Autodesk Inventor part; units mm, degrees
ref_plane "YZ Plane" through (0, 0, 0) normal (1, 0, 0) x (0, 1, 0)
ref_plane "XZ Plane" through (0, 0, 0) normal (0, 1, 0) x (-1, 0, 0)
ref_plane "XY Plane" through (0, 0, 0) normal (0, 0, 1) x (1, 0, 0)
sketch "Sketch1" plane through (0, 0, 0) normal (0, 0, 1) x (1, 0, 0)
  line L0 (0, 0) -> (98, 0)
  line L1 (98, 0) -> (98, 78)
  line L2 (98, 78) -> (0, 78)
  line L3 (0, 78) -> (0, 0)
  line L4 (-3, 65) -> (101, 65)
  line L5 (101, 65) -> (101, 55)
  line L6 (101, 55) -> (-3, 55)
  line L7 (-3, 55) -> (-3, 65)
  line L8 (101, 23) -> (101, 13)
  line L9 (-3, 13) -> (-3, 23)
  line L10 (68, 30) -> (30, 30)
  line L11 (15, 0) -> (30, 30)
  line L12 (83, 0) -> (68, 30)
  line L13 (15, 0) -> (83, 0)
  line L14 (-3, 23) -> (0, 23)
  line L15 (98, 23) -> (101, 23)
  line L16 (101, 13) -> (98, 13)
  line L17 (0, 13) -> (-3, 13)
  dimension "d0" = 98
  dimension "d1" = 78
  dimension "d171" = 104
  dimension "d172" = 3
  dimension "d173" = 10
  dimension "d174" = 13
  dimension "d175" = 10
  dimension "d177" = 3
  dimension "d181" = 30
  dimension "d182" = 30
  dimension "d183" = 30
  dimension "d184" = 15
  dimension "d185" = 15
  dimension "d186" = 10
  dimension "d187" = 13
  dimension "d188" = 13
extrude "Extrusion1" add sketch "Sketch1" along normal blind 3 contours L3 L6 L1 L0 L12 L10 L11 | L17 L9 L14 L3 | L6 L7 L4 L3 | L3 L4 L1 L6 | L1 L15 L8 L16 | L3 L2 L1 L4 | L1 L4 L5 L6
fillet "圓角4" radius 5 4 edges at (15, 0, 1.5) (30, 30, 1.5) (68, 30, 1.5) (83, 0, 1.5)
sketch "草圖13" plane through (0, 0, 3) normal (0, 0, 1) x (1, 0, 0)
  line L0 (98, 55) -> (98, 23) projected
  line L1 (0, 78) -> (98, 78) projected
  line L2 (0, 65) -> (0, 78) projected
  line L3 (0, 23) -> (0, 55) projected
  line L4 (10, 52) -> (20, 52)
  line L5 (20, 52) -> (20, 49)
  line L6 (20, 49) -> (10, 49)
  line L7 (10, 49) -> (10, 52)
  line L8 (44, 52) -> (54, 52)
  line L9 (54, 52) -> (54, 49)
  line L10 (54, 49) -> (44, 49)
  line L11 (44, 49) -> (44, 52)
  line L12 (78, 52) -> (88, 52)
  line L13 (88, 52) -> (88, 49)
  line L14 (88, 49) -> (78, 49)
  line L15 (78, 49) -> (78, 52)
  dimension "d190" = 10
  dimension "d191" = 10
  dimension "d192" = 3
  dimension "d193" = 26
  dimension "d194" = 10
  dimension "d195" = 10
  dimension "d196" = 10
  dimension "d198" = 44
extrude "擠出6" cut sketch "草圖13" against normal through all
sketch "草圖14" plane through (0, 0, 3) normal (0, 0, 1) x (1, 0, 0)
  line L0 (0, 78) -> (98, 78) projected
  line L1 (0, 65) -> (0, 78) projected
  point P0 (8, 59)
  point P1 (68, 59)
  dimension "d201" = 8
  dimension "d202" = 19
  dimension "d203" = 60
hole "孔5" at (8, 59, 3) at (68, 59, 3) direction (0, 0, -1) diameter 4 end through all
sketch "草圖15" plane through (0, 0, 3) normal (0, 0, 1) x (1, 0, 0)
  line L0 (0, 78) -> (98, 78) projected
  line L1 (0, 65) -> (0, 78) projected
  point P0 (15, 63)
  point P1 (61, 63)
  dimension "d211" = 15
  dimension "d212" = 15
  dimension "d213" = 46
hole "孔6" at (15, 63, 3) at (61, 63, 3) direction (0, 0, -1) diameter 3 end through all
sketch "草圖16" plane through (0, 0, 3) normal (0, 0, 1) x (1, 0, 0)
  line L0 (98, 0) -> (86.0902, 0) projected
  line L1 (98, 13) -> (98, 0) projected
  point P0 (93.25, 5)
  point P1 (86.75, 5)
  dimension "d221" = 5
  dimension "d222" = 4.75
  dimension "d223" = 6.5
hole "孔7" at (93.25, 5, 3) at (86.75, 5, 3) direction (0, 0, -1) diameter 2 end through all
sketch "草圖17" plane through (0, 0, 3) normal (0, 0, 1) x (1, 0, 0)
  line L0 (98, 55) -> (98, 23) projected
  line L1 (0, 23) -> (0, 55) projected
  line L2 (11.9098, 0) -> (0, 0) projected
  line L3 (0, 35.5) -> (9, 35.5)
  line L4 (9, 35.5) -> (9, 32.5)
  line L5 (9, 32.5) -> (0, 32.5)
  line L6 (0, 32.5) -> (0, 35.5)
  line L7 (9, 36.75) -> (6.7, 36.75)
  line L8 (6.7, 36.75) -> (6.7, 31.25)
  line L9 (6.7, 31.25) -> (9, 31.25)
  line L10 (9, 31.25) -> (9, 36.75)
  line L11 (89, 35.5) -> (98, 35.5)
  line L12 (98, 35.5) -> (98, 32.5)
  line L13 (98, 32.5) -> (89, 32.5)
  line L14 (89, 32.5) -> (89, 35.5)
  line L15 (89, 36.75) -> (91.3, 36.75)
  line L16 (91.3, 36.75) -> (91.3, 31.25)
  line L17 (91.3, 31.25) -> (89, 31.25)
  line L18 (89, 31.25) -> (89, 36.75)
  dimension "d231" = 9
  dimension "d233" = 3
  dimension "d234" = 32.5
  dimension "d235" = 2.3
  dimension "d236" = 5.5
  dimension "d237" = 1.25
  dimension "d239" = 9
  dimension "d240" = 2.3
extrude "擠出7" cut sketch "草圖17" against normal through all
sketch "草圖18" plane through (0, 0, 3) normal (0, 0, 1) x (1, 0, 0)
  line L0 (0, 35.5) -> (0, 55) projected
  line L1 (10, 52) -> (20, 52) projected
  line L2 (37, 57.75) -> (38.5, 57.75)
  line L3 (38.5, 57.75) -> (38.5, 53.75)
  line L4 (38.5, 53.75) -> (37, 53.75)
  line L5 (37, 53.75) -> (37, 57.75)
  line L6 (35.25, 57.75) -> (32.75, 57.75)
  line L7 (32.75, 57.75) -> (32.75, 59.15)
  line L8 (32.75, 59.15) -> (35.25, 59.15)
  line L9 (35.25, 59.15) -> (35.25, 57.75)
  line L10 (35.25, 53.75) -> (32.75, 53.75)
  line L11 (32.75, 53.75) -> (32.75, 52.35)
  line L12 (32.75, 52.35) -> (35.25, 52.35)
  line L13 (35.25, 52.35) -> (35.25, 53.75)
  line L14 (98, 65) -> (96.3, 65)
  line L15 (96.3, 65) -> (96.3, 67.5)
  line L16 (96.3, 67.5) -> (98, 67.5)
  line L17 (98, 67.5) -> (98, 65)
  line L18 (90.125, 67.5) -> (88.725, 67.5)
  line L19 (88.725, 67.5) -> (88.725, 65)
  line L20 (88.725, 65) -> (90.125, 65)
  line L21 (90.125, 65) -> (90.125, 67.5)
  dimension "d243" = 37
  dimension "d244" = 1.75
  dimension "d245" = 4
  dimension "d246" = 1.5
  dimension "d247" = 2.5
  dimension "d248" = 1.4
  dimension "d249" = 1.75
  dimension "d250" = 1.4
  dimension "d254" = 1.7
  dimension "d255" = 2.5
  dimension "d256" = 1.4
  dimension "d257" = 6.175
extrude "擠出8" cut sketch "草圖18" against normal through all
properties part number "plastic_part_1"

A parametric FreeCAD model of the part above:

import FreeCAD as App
import Part
import Sketcher
from FreeCAD import Vector


def edges_at(feature, points):
    """Names of the edges that pass closest to the given points."""
    edges = feature.Shape.Edges
    near = lambda p: min(range(len(edges)), key=lambda i: edges[i].distToShape(Part.Vertex(*p))[0])
    return sorted({f"Edge{near(p) + 1}" for p in points})


def add_polygon(sketch, points):
    """Adds a closed chain of lines whose ends are joined by coincident constraints."""
    first, n = sketch.GeometryCount, len(points)
    for a, b in zip(points, points[1:] + points[:1]):
        sketch.addGeometry(Part.LineSegment(App.Vector(*a, 0), App.Vector(*b, 0)), False)
    for i in range(n):
        sketch.addConstraint(Sketcher.Constraint("Coincident", first + i, 2, first + (i + 1) % n, 1))

doc = App.newDocument("Part")
body = doc.addObject("PartDesign::Body", "Body")

# Sketch on XY plane
sketch1 = doc.addObject("Sketcher::SketchObject", "Sketch")
body.addObject(sketch1)
sketch1.AttachmentSupport = (doc.XY_Plane, [""])
sketch1.MapMode = "FlatFace"
add_polygon(sketch1, [(0, 13), (0, 0), (15, 0), (30, 30), (68, 30), (83, 0), (98, 0), (98, 13), (101, 13), (101, 23), (98, 23), (98, 55), (101, 55), (101, 65), (98, 65), (98, 78), (0, 78), (0, 65), (-3, 65), (-3, 55), (0, 55), (0, 23), (-3, 23), (-3, 13)])  # lines 0-23
sketch1.addConstraint(Sketcher.Constraint("Vertical", 0))
sketch1.addConstraint(Sketcher.Constraint("Horizontal", 1))
sketch1.addConstraint(Sketcher.Constraint("Horizontal", 3))
sketch1.addConstraint(Sketcher.Constraint("Horizontal", 5))
sketch1.addConstraint(Sketcher.Constraint("Vertical", 6))
sketch1.addConstraint(Sketcher.Constraint("Horizontal", 7))
sketch1.addConstraint(Sketcher.Constraint("Vertical", 8))
sketch1.addConstraint(Sketcher.Constraint("Horizontal", 9))
sketch1.addConstraint(Sketcher.Constraint("Vertical", 10))
sketch1.addConstraint(Sketcher.Constraint("Horizontal", 11))
sketch1.addConstraint(Sketcher.Constraint("Vertical", 12))
sketch1.addConstraint(Sketcher.Constraint("Horizontal", 13))
sketch1.addConstraint(Sketcher.Constraint("Vertical", 14))
sketch1.addConstraint(Sketcher.Constraint("Horizontal", 15))
sketch1.addConstraint(Sketcher.Constraint("Vertical", 16))
sketch1.addConstraint(Sketcher.Constraint("Horizontal", 17))
sketch1.addConstraint(Sketcher.Constraint("Vertical", 18))
sketch1.addConstraint(Sketcher.Constraint("Horizontal", 19))
sketch1.addConstraint(Sketcher.Constraint("Vertical", 20))
sketch1.addConstraint(Sketcher.Constraint("Horizontal", 21))
sketch1.addConstraint(Sketcher.Constraint("Vertical", 22))
sketch1.addConstraint(Sketcher.Constraint("Horizontal", 23))
sketch1.addConstraint(Sketcher.Constraint("Coincident", 0, 2, -1, 1))
sketch1.addConstraint(Sketcher.Constraint("PointOnObject", 4, 2, -1))
sketch1.addConstraint(Sketcher.Constraint("PointOnObject", 15, 2, -2))
sketch1.addConstraint(Sketcher.Constraint("PointOnObject", 19, 2, -2))
sketch1.addConstraint(Sketcher.Constraint("Horizontal", 13, 2, 16, 2))
sketch1.addConstraint(Sketcher.Constraint("Horizontal", 11, 2, 18, 2))
sketch1.addConstraint(Sketcher.Constraint("Horizontal", 9, 2, 20, 2))
sketch1.addConstraint(Sketcher.Constraint("Horizontal", 7, 2, 22, 2))
sketch1.addConstraint(Sketcher.Constraint("Vertical", 6, 2, 9, 2))
sketch1.addConstraint(Sketcher.Constraint("Vertical", 8, 2, 11, 2))
sketch1.addConstraint(Sketcher.Constraint("Vertical", 10, 2, 13, 2))
sketch1.addConstraint(Sketcher.Constraint("Vertical", 18, 2, 21, 2))
sketch1.addConstraint(Sketcher.Constraint("Equal", 1, 5))
sketch1.addConstraint(Sketcher.Constraint("Equal", 13, 17))
sketch1.addConstraint(Sketcher.Constraint("Equal", 8, 12))
sketch1.addConstraint(Sketcher.Constraint("Equal", 6, 14))
sketch1.addConstraint(Sketcher.Constraint("Equal", 2, 4))
sketch1.addConstraint(Sketcher.Constraint("DistanceX", 1, 1, 1, 2, 15.0))
sketch1.addConstraint(Sketcher.Constraint("DistanceX", 7, 1, 7, 2, 3.0))
sketch1.addConstraint(Sketcher.Constraint("DistanceX", 15, 2, 15, 1, 98.0))
sketch1.addConstraint(Sketcher.Constraint("DistanceY", 0, 2, 0, 1, 13.0))
sketch1.addConstraint(Sketcher.Constraint("DistanceY", 8, 1, 8, 2, 10.0))
sketch1.addConstraint(Sketcher.Constraint("DistanceX", -1, 1, 2, 2, 30.0))
sketch1.addConstraint(Sketcher.Constraint("DistanceY", -1, 1, 2, 2, 30.0))
sketch1.addConstraint(Sketcher.Constraint("DistanceY", -1, 1, 14, 2, 78.0))
pad1 = doc.addObject("PartDesign::Pad", "Pad")
body.addObject(pad1)
pad1.Profile = sketch1
pad1.Length = 3
doc.recompute()

fillet = doc.addObject("PartDesign::Fillet", "Fillet")
body.addObject(fillet)
fillet.Base = (pad1, edges_at(pad1, [
    (15, 0, 1.5),
    (30, 30, 1.5),
    (68, 30, 1.5),
    (83, 0, 1.5),
]))
fillet.Radius = 5

# Sketch on XY plane
sketch2 = doc.addObject("Sketcher::SketchObject", "Sketch001")
body.addObject(sketch2)
sketch2.AttachmentSupport = (doc.XY_Plane, [""])
sketch2.MapMode = "FlatFace"
sketch2.AttachmentOffset = App.Placement(Vector(0, 0, 3), App.Rotation())
add_polygon(sketch2, [(20, 52), (10, 52), (10, 49), (20, 49)])  # lines 0-3
add_polygon(sketch2, [(54, 52), (44, 52), (44, 49), (54, 49)])  # lines 4-7
add_polygon(sketch2, [(88, 52), (78, 52), (78, 49), (88, 49)])  # lines 8-11
sketch2.addConstraint(Sketcher.Constraint("Horizontal", 0))
sketch2.addConstraint(Sketcher.Constraint("Vertical", 1))
sketch2.addConstraint(Sketcher.Constraint("Horizontal", 2))
sketch2.addConstraint(Sketcher.Constraint("Vertical", 3))
sketch2.addConstraint(Sketcher.Constraint("Horizontal", 4))
sketch2.addConstraint(Sketcher.Constraint("Vertical", 5))
sketch2.addConstraint(Sketcher.Constraint("Horizontal", 6))
sketch2.addConstraint(Sketcher.Constraint("Vertical", 7))
sketch2.addConstraint(Sketcher.Constraint("Horizontal", 8))
sketch2.addConstraint(Sketcher.Constraint("Vertical", 9))
sketch2.addConstraint(Sketcher.Constraint("Horizontal", 10))
sketch2.addConstraint(Sketcher.Constraint("Vertical", 11))
sketch2.addConstraint(Sketcher.Constraint("Horizontal", 3, 2, 4, 2))
sketch2.addConstraint(Sketcher.Constraint("Horizontal", 2, 2, 5, 2))
sketch2.addConstraint(Sketcher.Constraint("Horizontal", 7, 2, 8, 2))
sketch2.addConstraint(Sketcher.Constraint("Horizontal", 6, 2, 9, 2))
sketch2.addConstraint(Sketcher.Constraint("Equal", 2, 4))
sketch2.addConstraint(Sketcher.Constraint("Equal", 6, 8))
sketch2.addConstraint(Sketcher.Constraint("DistanceX", 0, 2, 0, 1, 10.0))
sketch2.addConstraint(Sketcher.Constraint("DistanceY", 1, 2, 1, 1, 3.0))
sketch2.addConstraint(Sketcher.Constraint("DistanceX", -1, 1, 0, 2, 10.0))
sketch2.addConstraint(Sketcher.Constraint("DistanceX", -1, 1, 4, 2, 44.0))
sketch2.addConstraint(Sketcher.Constraint("DistanceX", 5, 2, 10, 2, 44.0))
sketch2.addConstraint(Sketcher.Constraint("DistanceY", -1, 1, 0, 2, 52.0))
pocket1 = doc.addObject("PartDesign::Pocket", "Pocket")
body.addObject(pocket1)
pocket1.Profile = sketch2
pocket1.Type = "ThroughAll"

# Sketch on XY plane
sketch3 = doc.addObject("Sketcher::SketchObject", "Sketch002")
body.addObject(sketch3)
sketch3.AttachmentSupport = (doc.XY_Plane, [""])
sketch3.MapMode = "FlatFace"
sketch3.AttachmentOffset = App.Placement(Vector(0, 0, 3), App.Rotation())
sketch3.addGeometry(Part.Circle(Vector(8, 59, 0), Vector(0, 0, 1), 2), False)
sketch3.addGeometry(Part.Circle(Vector(68, 59, 0), Vector(0, 0, 1), 2), False)
sketch3.addConstraint(Sketcher.Constraint("Equal", 0, 1))
sketch3.addConstraint(Sketcher.Constraint("Horizontal", 0, 3, 1, 3))
sketch3.addConstraint(Sketcher.Constraint("Diameter", 0, 4.0))
sketch3.addConstraint(Sketcher.Constraint("DistanceX", -1, 1, 0, 3, 8.0))
sketch3.addConstraint(Sketcher.Constraint("DistanceY", -1, 1, 0, 3, 59.0))
sketch3.addConstraint(Sketcher.Constraint("DistanceX", -1, 1, 1, 3, 68.0))
doc.recompute()
hole = doc.addObject("PartDesign::Hole", "Hole")
body.addObject(hole)
hole.Profile = sketch3
hole.ThreadType = "None"
hole.Diameter = 4
hole.DepthType = "ThroughAll"

# Sketch on XY plane
sketch4 = doc.addObject("Sketcher::SketchObject", "Sketch003")
body.addObject(sketch4)
sketch4.AttachmentSupport = (doc.XY_Plane, [""])
sketch4.MapMode = "FlatFace"
sketch4.AttachmentOffset = App.Placement(Vector(0, 0, 3), App.Rotation())
sketch4.addGeometry(Part.Circle(Vector(15, 63, 0), Vector(0, 0, 1), 1.5), False)
sketch4.addGeometry(Part.Circle(Vector(61, 63, 0), Vector(0, 0, 1), 1.5), False)
sketch4.addConstraint(Sketcher.Constraint("Equal", 0, 1))
sketch4.addConstraint(Sketcher.Constraint("Horizontal", 0, 3, 1, 3))
sketch4.addConstraint(Sketcher.Constraint("Diameter", 0, 3.0))
sketch4.addConstraint(Sketcher.Constraint("DistanceX", -1, 1, 0, 3, 15.0))
sketch4.addConstraint(Sketcher.Constraint("DistanceY", -1, 1, 0, 3, 63.0))
sketch4.addConstraint(Sketcher.Constraint("DistanceX", -1, 1, 1, 3, 61.0))
doc.recompute()
hole2 = doc.addObject("PartDesign::Hole", "Hole001")
body.addObject(hole2)
hole2.Profile = sketch4
hole2.ThreadType = "None"
hole2.Diameter = 3
hole2.DepthType = "ThroughAll"

# Sketch on XY plane
sketch5 = doc.addObject("Sketcher::SketchObject", "Sketch004")
body.addObject(sketch5)
sketch5.AttachmentSupport = (doc.XY_Plane, [""])
sketch5.MapMode = "FlatFace"
sketch5.AttachmentOffset = App.Placement(Vector(0, 0, 3), App.Rotation())
sketch5.addGeometry(Part.Circle(Vector(93.25, 5, 0), Vector(0, 0, 1), 1), False)
sketch5.addGeometry(Part.Circle(Vector(86.75, 5, 0), Vector(0, 0, 1), 1), False)
sketch5.addConstraint(Sketcher.Constraint("Equal", 0, 1))
sketch5.addConstraint(Sketcher.Constraint("Horizontal", 0, 3, 1, 3))
sketch5.addConstraint(Sketcher.Constraint("Diameter", 0, 2.0))
sketch5.addConstraint(Sketcher.Constraint("DistanceY", -1, 1, 0, 3, 5.0))
sketch5.addConstraint(Sketcher.Constraint("DistanceX", 1, 3, 0, 3, 6.5))
sketch5.addConstraint(Sketcher.Constraint("DistanceX", -1, 1, 0, 3, 93.25))
doc.recompute()
hole3 = doc.addObject("PartDesign::Hole", "Hole002")
body.addObject(hole3)
hole3.Profile = sketch5
hole3.ThreadType = "None"
hole3.Diameter = 2
hole3.DepthType = "ThroughAll"

# Sketch on XY plane
sketch6 = doc.addObject("Sketcher::SketchObject", "Sketch005")
body.addObject(sketch6)
sketch6.AttachmentSupport = (doc.XY_Plane, [""])
sketch6.MapMode = "FlatFace"
sketch6.AttachmentOffset = App.Placement(Vector(0, 0, 3), App.Rotation())
add_polygon(sketch6, [(98, 32.5), (98, 35.5), (91.3, 35.5), (91.3, 36.75), (89, 36.75), (89, 31.25), (91.3, 31.25), (91.3, 32.5)])  # lines 0-7
add_polygon(sketch6, [(0, 35.5), (0, 32.5), (6.7, 32.5), (6.7, 31.25), (9, 31.25), (9, 36.75), (6.7, 36.75), (6.7, 35.5)])  # lines 8-15
sketch6.addConstraint(Sketcher.Constraint("Vertical", 0))
sketch6.addConstraint(Sketcher.Constraint("Horizontal", 1))
sketch6.addConstraint(Sketcher.Constraint("Vertical", 2))
sketch6.addConstraint(Sketcher.Constraint("Horizontal", 3))
sketch6.addConstraint(Sketcher.Constraint("Vertical", 4))
sketch6.addConstraint(Sketcher.Constraint("Horizontal", 5))
sketch6.addConstraint(Sketcher.Constraint("Vertical", 6))
sketch6.addConstraint(Sketcher.Constraint("Horizontal", 7))
sketch6.addConstraint(Sketcher.Constraint("Vertical", 8))
sketch6.addConstraint(Sketcher.Constraint("Horizontal", 9))
sketch6.addConstraint(Sketcher.Constraint("Vertical", 10))
sketch6.addConstraint(Sketcher.Constraint("Horizontal", 11))
sketch6.addConstraint(Sketcher.Constraint("Vertical", 12))
sketch6.addConstraint(Sketcher.Constraint("Horizontal", 13))
sketch6.addConstraint(Sketcher.Constraint("Vertical", 14))
sketch6.addConstraint(Sketcher.Constraint("Horizontal", 15))
sketch6.addConstraint(Sketcher.Constraint("PointOnObject", 8, 2, -2))
sketch6.addConstraint(Sketcher.Constraint("Horizontal", 7, 2, 8, 2))
sketch6.addConstraint(Sketcher.Constraint("Horizontal", 5, 2, 10, 2))
sketch6.addConstraint(Sketcher.Constraint("Horizontal", 3, 2, 12, 2))
sketch6.addConstraint(Sketcher.Constraint("Horizontal", 1, 2, 14, 2))
sketch6.addConstraint(Sketcher.Constraint("Vertical", 2, 2, 5, 2))
sketch6.addConstraint(Sketcher.Constraint("Vertical", 10, 2, 13, 2))
sketch6.addConstraint(Sketcher.Constraint("Equal", 7, 9))
sketch6.addConstraint(Sketcher.Constraint("Equal", 5, 11))
sketch6.addConstraint(Sketcher.Constraint("Equal", 2, 6))
sketch6.addConstraint(Sketcher.Constraint("DistanceY", 0, 1, 0, 2, 3.0))
sketch6.addConstraint(Sketcher.Constraint("DistanceX", 3, 2, 3, 1, 2.3))
sketch6.addConstraint(Sketcher.Constraint("DistanceY", 4, 2, 4, 1, 5.5))
sketch6.addConstraint(Sketcher.Constraint("DistanceX", -1, 1, 11, 2, 9.0))
sketch6.addConstraint(Sketcher.Constraint("DistanceY", -1, 1, 6, 2, 32.5))
sketch6.addConstraint(Sketcher.Constraint("DistanceX", -1, 1, 0, 2, 98.0))
pocket2 = doc.addObject("PartDesign::Pocket", "Pocket001")
body.addObject(pocket2)
pocket2.Profile = sketch6
pocket2.Type = "ThroughAll"

# Sketch on XY plane
sketch7 = doc.addObject("Sketcher::SketchObject", "Sketch006")
body.addObject(sketch7)
sketch7.AttachmentSupport = (doc.XY_Plane, [""])
sketch7.MapMode = "FlatFace"
sketch7.AttachmentOffset = App.Placement(Vector(0, 0, 3), App.Rotation())
add_polygon(sketch7, [(38.5, 57.75), (37, 57.75), (37, 53.75), (38.5, 53.75)])  # lines 0-3
add_polygon(sketch7, [(32.75, 57.75), (35.25, 57.75), (35.25, 59.15), (32.75, 59.15)])  # lines 4-7
add_polygon(sketch7, [(35.25, 52.35), (35.25, 53.75), (32.75, 53.75), (32.75, 52.35)])  # lines 8-11
add_polygon(sketch7, [(96.3, 65), (98, 65), (98, 67.5), (96.3, 67.5)])  # lines 12-15
add_polygon(sketch7, [(90.125, 65), (90.125, 67.5), (88.725, 67.5), (88.725, 65)])  # lines 16-19
sketch7.addConstraint(Sketcher.Constraint("Horizontal", 0))
sketch7.addConstraint(Sketcher.Constraint("Vertical", 1))
sketch7.addConstraint(Sketcher.Constraint("Horizontal", 2))
sketch7.addConstraint(Sketcher.Constraint("Vertical", 3))
sketch7.addConstraint(Sketcher.Constraint("Horizontal", 4))
sketch7.addConstraint(Sketcher.Constraint("Vertical", 5))
sketch7.addConstraint(Sketcher.Constraint("Horizontal", 6))
sketch7.addConstraint(Sketcher.Constraint("Vertical", 7))
sketch7.addConstraint(Sketcher.Constraint("Vertical", 8))
sketch7.addConstraint(Sketcher.Constraint("Horizontal", 9))
sketch7.addConstraint(Sketcher.Constraint("Vertical", 10))
sketch7.addConstraint(Sketcher.Constraint("Horizontal", 11))
sketch7.addConstraint(Sketcher.Constraint("Horizontal", 12))
sketch7.addConstraint(Sketcher.Constraint("Vertical", 13))
sketch7.addConstraint(Sketcher.Constraint("Horizontal", 14))
sketch7.addConstraint(Sketcher.Constraint("Vertical", 15))
sketch7.addConstraint(Sketcher.Constraint("Vertical", 16))
sketch7.addConstraint(Sketcher.Constraint("Horizontal", 17))
sketch7.addConstraint(Sketcher.Constraint("Vertical", 18))
sketch7.addConstraint(Sketcher.Constraint("Horizontal", 19))
sketch7.addConstraint(Sketcher.Constraint("Horizontal", 3, 2, 4, 2))
sketch7.addConstraint(Sketcher.Constraint("Horizontal", 2, 2, 8, 2))
sketch7.addConstraint(Sketcher.Constraint("Horizontal", 14, 2, 16, 2))
sketch7.addConstraint(Sketcher.Constraint("Horizontal", 15, 2, 18, 2))
sketch7.addConstraint(Sketcher.Constraint("Vertical", 5, 2, 8, 2))
sketch7.addConstraint(Sketcher.Constraint("Vertical", 7, 2, 9, 2))
sketch7.addConstraint(Sketcher.Constraint("Equal", 19, 5))
sketch7.addConstraint(Sketcher.Constraint("Equal", 7, 8))
sketch7.addConstraint(Sketcher.Constraint("Equal", 11, 13))
sketch7.addConstraint(Sketcher.Constraint("DistanceY", 1, 2, 1, 1, 4.0))
sketch7.addConstraint(Sketcher.Constraint("DistanceX", 0, 2, 0, 1, 1.5))
sketch7.addConstraint(Sketcher.Constraint("DistanceX", 4, 1, 4, 2, 2.5))
sketch7.addConstraint(Sketcher.Constraint("DistanceX", 12, 1, 12, 2, 1.7))
sketch7.addConstraint(Sketcher.Constraint("DistanceX", 17, 2, 17, 1, 1.4))
sketch7.addConstraint(Sketcher.Constraint("DistanceX", -1, 1, 0, 2, 37.0))
sketch7.addConstraint(Sketcher.Constraint("DistanceX", 4, 2, 0, 2, 1.75))
sketch7.addConstraint(Sketcher.Constraint("DistanceX", -1, 1, 12, 2, 98.0))
sketch7.addConstraint(Sketcher.Constraint("DistanceY", -1, 1, 12, 2, 65.0))
sketch7.addConstraint(Sketcher.Constraint("DistanceX", 16, 2, 14, 2, 6.175))
sketch7.addConstraint(Sketcher.Constraint("DistanceY", -1, 1, 0, 2, 57.75))
pocket3 = doc.addObject("PartDesign::Pocket", "Pocket002")
body.addObject(pocket3)
pocket3.Profile = sketch7
pocket3.Type = "ThroughAll"

doc.recompute()
